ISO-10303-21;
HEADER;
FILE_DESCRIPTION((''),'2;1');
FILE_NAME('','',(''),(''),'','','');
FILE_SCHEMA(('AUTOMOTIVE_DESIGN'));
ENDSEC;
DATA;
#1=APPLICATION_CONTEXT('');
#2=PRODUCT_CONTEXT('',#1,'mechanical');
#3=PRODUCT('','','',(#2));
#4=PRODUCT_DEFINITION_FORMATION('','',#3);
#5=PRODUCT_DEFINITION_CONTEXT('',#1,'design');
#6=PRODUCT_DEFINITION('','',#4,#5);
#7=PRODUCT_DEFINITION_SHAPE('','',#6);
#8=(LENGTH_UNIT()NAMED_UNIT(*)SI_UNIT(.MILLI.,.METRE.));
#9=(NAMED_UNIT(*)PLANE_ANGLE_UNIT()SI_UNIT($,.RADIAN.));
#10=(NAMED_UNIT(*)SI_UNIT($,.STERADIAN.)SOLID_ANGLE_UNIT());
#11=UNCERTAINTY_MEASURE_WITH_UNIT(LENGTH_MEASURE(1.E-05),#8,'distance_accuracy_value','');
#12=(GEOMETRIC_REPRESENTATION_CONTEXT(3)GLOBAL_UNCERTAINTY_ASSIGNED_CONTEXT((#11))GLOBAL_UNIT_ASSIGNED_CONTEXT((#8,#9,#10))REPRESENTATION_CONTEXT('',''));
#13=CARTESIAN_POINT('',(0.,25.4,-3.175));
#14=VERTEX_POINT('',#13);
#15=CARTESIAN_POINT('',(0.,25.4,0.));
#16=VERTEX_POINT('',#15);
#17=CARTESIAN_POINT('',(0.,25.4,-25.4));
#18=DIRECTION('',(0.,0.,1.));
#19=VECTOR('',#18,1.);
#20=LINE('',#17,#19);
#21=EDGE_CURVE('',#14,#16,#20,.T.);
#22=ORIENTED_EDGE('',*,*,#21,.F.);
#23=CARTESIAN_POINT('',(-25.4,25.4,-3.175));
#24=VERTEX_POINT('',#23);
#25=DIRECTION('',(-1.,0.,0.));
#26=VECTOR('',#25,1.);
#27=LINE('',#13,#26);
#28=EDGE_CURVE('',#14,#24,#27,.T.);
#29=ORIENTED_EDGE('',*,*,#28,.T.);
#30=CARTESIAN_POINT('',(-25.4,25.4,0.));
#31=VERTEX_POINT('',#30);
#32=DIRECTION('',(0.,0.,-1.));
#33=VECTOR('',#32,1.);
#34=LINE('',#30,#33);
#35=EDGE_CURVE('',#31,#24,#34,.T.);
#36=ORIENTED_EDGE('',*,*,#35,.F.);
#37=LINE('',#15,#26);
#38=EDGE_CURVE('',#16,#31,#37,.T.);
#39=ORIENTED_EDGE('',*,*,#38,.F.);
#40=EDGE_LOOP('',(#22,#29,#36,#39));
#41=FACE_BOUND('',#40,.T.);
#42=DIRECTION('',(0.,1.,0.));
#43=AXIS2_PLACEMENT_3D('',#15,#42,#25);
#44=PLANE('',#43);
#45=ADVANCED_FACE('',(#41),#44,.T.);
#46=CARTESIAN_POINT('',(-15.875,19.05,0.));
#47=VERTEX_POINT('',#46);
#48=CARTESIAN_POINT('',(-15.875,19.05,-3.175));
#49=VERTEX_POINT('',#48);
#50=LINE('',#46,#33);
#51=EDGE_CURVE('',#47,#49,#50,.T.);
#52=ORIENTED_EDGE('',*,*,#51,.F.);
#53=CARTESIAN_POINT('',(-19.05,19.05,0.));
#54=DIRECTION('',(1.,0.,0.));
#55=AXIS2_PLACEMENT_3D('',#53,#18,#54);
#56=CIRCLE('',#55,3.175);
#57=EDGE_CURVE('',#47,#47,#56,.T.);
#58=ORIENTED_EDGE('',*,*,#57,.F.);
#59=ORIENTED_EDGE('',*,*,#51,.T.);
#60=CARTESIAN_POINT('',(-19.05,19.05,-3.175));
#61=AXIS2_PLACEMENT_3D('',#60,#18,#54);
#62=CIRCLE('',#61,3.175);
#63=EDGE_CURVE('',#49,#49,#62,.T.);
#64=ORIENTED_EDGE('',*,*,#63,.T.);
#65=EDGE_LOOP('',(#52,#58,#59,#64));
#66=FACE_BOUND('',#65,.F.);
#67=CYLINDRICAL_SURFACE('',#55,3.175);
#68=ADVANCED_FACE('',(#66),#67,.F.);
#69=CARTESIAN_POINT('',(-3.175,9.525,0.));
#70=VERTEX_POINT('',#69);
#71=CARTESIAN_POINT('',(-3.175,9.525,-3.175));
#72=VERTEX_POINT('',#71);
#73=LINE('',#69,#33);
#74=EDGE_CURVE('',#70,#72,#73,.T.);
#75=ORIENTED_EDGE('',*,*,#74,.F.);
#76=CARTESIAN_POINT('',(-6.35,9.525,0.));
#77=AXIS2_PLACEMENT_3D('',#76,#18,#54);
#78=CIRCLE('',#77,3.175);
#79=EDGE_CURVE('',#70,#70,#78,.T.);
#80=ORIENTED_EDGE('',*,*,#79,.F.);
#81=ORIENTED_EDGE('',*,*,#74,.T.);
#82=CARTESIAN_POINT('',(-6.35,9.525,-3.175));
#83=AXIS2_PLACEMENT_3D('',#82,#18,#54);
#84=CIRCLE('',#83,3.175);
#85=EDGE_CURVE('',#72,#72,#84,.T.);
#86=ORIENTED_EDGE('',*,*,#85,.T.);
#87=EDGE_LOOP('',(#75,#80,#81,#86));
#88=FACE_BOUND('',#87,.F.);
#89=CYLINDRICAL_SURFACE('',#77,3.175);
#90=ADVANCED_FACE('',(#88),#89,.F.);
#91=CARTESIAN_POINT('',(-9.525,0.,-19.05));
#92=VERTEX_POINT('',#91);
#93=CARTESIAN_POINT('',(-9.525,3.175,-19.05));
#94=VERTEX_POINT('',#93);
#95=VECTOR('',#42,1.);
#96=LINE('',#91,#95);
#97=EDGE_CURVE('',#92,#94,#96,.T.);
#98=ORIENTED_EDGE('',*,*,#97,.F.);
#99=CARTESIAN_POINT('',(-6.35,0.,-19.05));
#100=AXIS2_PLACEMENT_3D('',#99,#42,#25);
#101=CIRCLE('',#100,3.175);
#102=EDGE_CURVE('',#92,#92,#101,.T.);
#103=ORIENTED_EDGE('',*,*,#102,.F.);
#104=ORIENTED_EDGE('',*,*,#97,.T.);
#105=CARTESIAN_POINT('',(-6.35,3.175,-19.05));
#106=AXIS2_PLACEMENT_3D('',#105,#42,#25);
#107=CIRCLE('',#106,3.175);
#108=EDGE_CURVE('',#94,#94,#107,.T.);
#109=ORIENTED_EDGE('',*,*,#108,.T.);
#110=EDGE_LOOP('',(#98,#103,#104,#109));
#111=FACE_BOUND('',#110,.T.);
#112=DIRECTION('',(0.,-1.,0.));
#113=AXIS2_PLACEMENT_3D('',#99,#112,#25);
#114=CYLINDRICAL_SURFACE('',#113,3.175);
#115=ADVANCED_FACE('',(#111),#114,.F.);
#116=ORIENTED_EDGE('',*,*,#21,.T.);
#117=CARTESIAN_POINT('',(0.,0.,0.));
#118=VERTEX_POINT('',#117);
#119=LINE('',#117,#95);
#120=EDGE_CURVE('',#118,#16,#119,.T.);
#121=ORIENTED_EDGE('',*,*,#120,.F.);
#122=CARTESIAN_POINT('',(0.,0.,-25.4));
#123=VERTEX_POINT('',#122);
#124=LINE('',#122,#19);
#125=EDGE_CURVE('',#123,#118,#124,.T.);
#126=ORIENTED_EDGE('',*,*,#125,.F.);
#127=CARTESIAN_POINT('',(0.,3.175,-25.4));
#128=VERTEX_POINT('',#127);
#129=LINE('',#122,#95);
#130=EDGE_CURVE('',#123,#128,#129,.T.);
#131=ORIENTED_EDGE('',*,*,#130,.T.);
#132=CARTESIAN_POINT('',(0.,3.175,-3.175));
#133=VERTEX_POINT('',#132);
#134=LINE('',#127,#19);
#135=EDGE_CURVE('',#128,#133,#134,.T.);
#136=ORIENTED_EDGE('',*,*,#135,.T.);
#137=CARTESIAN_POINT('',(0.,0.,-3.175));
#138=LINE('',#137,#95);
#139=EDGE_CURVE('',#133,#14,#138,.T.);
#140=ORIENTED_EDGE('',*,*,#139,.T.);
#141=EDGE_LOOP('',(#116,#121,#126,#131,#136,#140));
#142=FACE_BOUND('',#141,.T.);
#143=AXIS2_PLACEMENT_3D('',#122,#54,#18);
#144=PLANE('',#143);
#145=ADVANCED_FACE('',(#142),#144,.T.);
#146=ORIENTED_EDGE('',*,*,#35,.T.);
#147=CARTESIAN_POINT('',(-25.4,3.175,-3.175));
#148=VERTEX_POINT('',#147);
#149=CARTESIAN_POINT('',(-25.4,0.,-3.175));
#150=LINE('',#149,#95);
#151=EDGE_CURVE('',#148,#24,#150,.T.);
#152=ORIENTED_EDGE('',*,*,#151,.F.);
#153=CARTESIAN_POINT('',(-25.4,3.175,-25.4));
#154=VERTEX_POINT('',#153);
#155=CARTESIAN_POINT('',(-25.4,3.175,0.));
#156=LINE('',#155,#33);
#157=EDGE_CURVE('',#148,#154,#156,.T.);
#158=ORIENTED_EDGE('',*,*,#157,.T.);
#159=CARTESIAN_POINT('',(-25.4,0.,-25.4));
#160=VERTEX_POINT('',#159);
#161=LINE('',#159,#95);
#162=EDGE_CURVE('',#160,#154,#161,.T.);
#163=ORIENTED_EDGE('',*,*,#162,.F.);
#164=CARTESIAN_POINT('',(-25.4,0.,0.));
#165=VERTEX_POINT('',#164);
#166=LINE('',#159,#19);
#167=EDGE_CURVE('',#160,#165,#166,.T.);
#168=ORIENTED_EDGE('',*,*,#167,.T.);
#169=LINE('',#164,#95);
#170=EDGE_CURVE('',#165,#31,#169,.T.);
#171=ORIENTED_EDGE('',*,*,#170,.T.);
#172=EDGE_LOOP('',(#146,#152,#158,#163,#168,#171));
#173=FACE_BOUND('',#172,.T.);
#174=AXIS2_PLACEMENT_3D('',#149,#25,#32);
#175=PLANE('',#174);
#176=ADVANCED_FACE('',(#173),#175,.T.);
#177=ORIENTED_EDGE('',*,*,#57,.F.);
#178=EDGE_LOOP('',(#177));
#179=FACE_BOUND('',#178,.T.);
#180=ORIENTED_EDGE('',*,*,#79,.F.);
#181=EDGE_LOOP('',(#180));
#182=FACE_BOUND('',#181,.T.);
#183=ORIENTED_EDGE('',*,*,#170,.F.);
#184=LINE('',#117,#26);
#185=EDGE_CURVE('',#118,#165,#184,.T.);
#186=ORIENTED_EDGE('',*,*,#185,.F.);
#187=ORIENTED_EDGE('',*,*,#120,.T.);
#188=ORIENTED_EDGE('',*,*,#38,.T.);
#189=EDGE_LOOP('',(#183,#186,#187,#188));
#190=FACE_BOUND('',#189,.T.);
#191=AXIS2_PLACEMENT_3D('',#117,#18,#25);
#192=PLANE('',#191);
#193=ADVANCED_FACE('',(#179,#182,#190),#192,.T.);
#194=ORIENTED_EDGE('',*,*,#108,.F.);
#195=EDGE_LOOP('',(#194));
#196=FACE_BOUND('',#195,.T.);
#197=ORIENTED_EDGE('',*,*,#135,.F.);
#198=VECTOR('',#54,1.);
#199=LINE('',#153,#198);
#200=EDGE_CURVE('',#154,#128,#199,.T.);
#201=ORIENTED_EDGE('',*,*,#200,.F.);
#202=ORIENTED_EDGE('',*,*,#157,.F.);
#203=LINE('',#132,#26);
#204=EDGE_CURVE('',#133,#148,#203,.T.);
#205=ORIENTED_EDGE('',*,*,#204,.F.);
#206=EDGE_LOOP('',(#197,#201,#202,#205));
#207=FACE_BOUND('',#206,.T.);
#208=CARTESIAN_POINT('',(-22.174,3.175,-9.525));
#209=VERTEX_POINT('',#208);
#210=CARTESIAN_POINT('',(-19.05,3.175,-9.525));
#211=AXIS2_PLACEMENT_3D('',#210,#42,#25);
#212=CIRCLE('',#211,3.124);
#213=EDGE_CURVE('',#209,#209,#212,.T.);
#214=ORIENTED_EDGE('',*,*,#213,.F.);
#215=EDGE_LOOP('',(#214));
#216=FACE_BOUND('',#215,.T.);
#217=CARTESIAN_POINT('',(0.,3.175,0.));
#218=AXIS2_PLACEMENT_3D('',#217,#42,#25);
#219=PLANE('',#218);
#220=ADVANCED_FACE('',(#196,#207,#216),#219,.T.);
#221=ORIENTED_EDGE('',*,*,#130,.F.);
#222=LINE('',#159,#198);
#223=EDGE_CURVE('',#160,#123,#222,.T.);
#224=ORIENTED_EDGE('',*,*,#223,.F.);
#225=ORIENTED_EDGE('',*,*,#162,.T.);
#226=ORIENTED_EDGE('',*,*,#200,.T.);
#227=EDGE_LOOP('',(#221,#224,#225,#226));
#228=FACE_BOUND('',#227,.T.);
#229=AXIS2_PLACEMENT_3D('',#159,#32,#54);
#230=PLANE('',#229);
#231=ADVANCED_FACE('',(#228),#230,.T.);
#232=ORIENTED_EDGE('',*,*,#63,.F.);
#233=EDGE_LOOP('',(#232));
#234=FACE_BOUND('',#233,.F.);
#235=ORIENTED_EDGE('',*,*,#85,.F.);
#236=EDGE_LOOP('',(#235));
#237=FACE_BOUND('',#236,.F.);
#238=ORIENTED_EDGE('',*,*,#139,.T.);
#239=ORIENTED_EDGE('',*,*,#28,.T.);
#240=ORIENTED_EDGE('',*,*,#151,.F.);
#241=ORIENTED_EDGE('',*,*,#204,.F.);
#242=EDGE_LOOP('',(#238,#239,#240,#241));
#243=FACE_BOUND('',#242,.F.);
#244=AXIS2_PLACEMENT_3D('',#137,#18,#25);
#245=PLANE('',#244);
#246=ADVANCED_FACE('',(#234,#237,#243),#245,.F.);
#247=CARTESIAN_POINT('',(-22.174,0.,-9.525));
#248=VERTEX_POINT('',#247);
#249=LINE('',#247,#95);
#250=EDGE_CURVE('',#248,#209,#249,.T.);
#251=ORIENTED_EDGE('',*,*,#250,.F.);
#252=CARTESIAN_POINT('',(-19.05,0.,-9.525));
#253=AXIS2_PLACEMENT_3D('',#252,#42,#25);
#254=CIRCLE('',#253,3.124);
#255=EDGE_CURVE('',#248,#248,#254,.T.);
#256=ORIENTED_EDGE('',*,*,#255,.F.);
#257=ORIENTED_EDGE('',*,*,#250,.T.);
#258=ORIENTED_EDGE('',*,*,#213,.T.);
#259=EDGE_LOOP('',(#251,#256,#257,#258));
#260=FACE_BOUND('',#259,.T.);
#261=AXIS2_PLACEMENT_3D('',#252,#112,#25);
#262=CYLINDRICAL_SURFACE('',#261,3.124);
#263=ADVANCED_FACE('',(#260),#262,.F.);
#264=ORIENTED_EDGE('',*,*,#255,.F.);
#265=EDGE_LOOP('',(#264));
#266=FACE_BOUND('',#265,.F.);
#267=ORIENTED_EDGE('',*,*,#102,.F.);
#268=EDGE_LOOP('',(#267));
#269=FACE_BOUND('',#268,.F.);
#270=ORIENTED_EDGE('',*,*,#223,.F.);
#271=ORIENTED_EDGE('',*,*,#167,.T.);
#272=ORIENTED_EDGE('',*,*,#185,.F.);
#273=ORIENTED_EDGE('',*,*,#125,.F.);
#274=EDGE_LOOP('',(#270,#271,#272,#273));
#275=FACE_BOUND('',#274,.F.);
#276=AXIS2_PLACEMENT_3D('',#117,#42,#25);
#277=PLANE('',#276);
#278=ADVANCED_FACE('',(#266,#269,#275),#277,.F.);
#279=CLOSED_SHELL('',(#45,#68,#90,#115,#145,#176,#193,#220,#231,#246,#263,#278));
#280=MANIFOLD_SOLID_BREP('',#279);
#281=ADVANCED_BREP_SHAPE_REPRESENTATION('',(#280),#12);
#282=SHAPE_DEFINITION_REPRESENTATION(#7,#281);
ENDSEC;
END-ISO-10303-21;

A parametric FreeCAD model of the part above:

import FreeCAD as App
import Part
import Sketcher

V = App.Vector
Q = App.Units.Quantity

doc = App.newDocument("Part")
body = doc.addObject("PartDesign::Body", "Body")

sketch1 = body.newObject("Sketcher::SketchObject", "Sketch")
sketch1.AttachmentSupport = (doc.getObject("XZ_Plane"), [""])
sketch1.MapMode = "FlatFace"
sketch1.addGeometry([
    Part.LineSegment(V(-25.4, -3.2, 0), V(0, -3.2, 0)),
    Part.LineSegment(V(0, -3.2, 0), V(0, -25.4, 0)),
    Part.LineSegment(V(0, -25.4, 0), V(-25.4, -25.4, 0)),
    Part.LineSegment(V(-25.4, -25.4, 0), V(-25.4, -3.2, 0)),
    Part.Circle(V(-6.3, -19.1, 0), V(0, 0, 1), 3.2),
    Part.Circle(V(-19.1, -9.5, 0), V(0, 0, 1), 3.1),
], False)
sketch1.addConstraint([
    Sketcher.Constraint("Coincident", 0, 2, 1, 1),
    Sketcher.Constraint("Coincident", 1, 2, 2, 1),
    Sketcher.Constraint("Coincident", 2, 2, 3, 1),
    Sketcher.Constraint("Coincident", 3, 2, 0, 1),
    Sketcher.Constraint("Horizontal", 0),
    Sketcher.Constraint("Vertical", 1),
    Sketcher.Constraint("Horizontal", 2),
    Sketcher.Constraint("Vertical", 3),
    Sketcher.Constraint("PointOnObject", 0, 2, -2),
    Sketcher.Constraint("Diameter", 4, Q("0.25 in")),
    Sketcher.Constraint("DistanceX", 0, 1, 0, 2, Q("1 in")),
    Sketcher.Constraint("DistanceY", 1, 2, -1, 1, Q("1 in")),
    Sketcher.Constraint("DistanceX", 4, 3, -1, 1, Q("0.25 in")),
    Sketcher.Constraint("DistanceY", 5, 3, 0, 2, Q("0.25 in")),
    Sketcher.Constraint("DistanceY", 1, 2, 4, 3, Q("0.25 in")),
    Sketcher.Constraint("DistanceX", 2, 2, 5, 3, Q("0.25 in")),
    Sketcher.Constraint("DistanceY", 5, 3, -1, 1, Q("0.375 in")),
    Sketcher.Constraint("Diameter", 5, 6.248),
])
pad1 = body.newObject("PartDesign::Pad", "Pad")
pad1.Profile = sketch1
pad1.Length = Q("0.125 in")
pad1.Reversed = True

sketch2 = body.newObject("Sketcher::SketchObject", "Sketch001")
sketch2.AttachmentSupport = (doc.getObject("XZ_Plane"), [""])
sketch2.MapMode = "FlatFace"
sketch2.addGeometry([
    Part.LineSegment(V(-25.4, 0, 0), V(0, 0, 0)),
    Part.LineSegment(V(0, 0, 0), V(0, -3.2, 0)),
    Part.LineSegment(V(0, -3.2, 0), V(-25.4, -3.2, 0)),
    Part.LineSegment(V(-25.4, -3.2, 0), V(-25.4, 0, 0)),
], False)
sketch2.addConstraint([
    Sketcher.Constraint("Coincident", 0, 2, 1, 1),
    Sketcher.Constraint("Coincident", 1, 2, 2, 1),
    Sketcher.Constraint("Coincident", 2, 2, 3, 1),
    Sketcher.Constraint("Coincident", 3, 2, 0, 1),
    Sketcher.Constraint("Horizontal", 0),
    Sketcher.Constraint("Vertical", 1),
    Sketcher.Constraint("Horizontal", 2),
    Sketcher.Constraint("Vertical", 3),
    Sketcher.Constraint("Coincident", 0, 2, -1, 1),
    Sketcher.Constraint("DistanceX", 0, 1, 0, 2, Q("1 in")),
    Sketcher.Constraint("DistanceY", 1, 2, 1, 1, Q("0.125 in")),
])
pad2 = body.newObject("PartDesign::Pad", "Pad001")
pad2.Profile = sketch2
pad2.Length = Q("1 in")
pad2.Reversed = True

sketch3 = body.newObject("Sketcher::SketchObject", "Sketch002")
sketch3.AttachmentSupport = (doc.getObject("XY_Plane"), [""])
sketch3.MapMode = "FlatFace"
sketch3.addGeometry([
    Part.Circle(V(-19.1, 19.1, 0), V(0, 0, 1), 3.2),
    Part.Circle(V(-6.3, 9.5, 0), V(0, 0, 1), 3.2),
], False)
sketch3.addConstraint([
    Sketcher.Constraint("Equal", 0, 1),
    Sketcher.Constraint("Diameter", 0, Q("0.25 in")),
    Sketcher.Constraint("DistanceX", 1, 3, -1, 1, Q("0.25 in")),
    Sketcher.Constraint("DistanceY", -1, 1, 1, 3, Q("0.375 in")),
    Sketcher.Constraint("DistanceY", 1, 3, 0, 3, Q("0.375 in")),
    Sketcher.Constraint("DistanceX", 0, 3, 1, 3, Q("0.5 in")),
])
pocket1 = body.newObject("PartDesign::Pocket", "Pocket")
pocket1.Profile = sketch3
pocket1.Type = "ThroughAll"

doc.recompute()
